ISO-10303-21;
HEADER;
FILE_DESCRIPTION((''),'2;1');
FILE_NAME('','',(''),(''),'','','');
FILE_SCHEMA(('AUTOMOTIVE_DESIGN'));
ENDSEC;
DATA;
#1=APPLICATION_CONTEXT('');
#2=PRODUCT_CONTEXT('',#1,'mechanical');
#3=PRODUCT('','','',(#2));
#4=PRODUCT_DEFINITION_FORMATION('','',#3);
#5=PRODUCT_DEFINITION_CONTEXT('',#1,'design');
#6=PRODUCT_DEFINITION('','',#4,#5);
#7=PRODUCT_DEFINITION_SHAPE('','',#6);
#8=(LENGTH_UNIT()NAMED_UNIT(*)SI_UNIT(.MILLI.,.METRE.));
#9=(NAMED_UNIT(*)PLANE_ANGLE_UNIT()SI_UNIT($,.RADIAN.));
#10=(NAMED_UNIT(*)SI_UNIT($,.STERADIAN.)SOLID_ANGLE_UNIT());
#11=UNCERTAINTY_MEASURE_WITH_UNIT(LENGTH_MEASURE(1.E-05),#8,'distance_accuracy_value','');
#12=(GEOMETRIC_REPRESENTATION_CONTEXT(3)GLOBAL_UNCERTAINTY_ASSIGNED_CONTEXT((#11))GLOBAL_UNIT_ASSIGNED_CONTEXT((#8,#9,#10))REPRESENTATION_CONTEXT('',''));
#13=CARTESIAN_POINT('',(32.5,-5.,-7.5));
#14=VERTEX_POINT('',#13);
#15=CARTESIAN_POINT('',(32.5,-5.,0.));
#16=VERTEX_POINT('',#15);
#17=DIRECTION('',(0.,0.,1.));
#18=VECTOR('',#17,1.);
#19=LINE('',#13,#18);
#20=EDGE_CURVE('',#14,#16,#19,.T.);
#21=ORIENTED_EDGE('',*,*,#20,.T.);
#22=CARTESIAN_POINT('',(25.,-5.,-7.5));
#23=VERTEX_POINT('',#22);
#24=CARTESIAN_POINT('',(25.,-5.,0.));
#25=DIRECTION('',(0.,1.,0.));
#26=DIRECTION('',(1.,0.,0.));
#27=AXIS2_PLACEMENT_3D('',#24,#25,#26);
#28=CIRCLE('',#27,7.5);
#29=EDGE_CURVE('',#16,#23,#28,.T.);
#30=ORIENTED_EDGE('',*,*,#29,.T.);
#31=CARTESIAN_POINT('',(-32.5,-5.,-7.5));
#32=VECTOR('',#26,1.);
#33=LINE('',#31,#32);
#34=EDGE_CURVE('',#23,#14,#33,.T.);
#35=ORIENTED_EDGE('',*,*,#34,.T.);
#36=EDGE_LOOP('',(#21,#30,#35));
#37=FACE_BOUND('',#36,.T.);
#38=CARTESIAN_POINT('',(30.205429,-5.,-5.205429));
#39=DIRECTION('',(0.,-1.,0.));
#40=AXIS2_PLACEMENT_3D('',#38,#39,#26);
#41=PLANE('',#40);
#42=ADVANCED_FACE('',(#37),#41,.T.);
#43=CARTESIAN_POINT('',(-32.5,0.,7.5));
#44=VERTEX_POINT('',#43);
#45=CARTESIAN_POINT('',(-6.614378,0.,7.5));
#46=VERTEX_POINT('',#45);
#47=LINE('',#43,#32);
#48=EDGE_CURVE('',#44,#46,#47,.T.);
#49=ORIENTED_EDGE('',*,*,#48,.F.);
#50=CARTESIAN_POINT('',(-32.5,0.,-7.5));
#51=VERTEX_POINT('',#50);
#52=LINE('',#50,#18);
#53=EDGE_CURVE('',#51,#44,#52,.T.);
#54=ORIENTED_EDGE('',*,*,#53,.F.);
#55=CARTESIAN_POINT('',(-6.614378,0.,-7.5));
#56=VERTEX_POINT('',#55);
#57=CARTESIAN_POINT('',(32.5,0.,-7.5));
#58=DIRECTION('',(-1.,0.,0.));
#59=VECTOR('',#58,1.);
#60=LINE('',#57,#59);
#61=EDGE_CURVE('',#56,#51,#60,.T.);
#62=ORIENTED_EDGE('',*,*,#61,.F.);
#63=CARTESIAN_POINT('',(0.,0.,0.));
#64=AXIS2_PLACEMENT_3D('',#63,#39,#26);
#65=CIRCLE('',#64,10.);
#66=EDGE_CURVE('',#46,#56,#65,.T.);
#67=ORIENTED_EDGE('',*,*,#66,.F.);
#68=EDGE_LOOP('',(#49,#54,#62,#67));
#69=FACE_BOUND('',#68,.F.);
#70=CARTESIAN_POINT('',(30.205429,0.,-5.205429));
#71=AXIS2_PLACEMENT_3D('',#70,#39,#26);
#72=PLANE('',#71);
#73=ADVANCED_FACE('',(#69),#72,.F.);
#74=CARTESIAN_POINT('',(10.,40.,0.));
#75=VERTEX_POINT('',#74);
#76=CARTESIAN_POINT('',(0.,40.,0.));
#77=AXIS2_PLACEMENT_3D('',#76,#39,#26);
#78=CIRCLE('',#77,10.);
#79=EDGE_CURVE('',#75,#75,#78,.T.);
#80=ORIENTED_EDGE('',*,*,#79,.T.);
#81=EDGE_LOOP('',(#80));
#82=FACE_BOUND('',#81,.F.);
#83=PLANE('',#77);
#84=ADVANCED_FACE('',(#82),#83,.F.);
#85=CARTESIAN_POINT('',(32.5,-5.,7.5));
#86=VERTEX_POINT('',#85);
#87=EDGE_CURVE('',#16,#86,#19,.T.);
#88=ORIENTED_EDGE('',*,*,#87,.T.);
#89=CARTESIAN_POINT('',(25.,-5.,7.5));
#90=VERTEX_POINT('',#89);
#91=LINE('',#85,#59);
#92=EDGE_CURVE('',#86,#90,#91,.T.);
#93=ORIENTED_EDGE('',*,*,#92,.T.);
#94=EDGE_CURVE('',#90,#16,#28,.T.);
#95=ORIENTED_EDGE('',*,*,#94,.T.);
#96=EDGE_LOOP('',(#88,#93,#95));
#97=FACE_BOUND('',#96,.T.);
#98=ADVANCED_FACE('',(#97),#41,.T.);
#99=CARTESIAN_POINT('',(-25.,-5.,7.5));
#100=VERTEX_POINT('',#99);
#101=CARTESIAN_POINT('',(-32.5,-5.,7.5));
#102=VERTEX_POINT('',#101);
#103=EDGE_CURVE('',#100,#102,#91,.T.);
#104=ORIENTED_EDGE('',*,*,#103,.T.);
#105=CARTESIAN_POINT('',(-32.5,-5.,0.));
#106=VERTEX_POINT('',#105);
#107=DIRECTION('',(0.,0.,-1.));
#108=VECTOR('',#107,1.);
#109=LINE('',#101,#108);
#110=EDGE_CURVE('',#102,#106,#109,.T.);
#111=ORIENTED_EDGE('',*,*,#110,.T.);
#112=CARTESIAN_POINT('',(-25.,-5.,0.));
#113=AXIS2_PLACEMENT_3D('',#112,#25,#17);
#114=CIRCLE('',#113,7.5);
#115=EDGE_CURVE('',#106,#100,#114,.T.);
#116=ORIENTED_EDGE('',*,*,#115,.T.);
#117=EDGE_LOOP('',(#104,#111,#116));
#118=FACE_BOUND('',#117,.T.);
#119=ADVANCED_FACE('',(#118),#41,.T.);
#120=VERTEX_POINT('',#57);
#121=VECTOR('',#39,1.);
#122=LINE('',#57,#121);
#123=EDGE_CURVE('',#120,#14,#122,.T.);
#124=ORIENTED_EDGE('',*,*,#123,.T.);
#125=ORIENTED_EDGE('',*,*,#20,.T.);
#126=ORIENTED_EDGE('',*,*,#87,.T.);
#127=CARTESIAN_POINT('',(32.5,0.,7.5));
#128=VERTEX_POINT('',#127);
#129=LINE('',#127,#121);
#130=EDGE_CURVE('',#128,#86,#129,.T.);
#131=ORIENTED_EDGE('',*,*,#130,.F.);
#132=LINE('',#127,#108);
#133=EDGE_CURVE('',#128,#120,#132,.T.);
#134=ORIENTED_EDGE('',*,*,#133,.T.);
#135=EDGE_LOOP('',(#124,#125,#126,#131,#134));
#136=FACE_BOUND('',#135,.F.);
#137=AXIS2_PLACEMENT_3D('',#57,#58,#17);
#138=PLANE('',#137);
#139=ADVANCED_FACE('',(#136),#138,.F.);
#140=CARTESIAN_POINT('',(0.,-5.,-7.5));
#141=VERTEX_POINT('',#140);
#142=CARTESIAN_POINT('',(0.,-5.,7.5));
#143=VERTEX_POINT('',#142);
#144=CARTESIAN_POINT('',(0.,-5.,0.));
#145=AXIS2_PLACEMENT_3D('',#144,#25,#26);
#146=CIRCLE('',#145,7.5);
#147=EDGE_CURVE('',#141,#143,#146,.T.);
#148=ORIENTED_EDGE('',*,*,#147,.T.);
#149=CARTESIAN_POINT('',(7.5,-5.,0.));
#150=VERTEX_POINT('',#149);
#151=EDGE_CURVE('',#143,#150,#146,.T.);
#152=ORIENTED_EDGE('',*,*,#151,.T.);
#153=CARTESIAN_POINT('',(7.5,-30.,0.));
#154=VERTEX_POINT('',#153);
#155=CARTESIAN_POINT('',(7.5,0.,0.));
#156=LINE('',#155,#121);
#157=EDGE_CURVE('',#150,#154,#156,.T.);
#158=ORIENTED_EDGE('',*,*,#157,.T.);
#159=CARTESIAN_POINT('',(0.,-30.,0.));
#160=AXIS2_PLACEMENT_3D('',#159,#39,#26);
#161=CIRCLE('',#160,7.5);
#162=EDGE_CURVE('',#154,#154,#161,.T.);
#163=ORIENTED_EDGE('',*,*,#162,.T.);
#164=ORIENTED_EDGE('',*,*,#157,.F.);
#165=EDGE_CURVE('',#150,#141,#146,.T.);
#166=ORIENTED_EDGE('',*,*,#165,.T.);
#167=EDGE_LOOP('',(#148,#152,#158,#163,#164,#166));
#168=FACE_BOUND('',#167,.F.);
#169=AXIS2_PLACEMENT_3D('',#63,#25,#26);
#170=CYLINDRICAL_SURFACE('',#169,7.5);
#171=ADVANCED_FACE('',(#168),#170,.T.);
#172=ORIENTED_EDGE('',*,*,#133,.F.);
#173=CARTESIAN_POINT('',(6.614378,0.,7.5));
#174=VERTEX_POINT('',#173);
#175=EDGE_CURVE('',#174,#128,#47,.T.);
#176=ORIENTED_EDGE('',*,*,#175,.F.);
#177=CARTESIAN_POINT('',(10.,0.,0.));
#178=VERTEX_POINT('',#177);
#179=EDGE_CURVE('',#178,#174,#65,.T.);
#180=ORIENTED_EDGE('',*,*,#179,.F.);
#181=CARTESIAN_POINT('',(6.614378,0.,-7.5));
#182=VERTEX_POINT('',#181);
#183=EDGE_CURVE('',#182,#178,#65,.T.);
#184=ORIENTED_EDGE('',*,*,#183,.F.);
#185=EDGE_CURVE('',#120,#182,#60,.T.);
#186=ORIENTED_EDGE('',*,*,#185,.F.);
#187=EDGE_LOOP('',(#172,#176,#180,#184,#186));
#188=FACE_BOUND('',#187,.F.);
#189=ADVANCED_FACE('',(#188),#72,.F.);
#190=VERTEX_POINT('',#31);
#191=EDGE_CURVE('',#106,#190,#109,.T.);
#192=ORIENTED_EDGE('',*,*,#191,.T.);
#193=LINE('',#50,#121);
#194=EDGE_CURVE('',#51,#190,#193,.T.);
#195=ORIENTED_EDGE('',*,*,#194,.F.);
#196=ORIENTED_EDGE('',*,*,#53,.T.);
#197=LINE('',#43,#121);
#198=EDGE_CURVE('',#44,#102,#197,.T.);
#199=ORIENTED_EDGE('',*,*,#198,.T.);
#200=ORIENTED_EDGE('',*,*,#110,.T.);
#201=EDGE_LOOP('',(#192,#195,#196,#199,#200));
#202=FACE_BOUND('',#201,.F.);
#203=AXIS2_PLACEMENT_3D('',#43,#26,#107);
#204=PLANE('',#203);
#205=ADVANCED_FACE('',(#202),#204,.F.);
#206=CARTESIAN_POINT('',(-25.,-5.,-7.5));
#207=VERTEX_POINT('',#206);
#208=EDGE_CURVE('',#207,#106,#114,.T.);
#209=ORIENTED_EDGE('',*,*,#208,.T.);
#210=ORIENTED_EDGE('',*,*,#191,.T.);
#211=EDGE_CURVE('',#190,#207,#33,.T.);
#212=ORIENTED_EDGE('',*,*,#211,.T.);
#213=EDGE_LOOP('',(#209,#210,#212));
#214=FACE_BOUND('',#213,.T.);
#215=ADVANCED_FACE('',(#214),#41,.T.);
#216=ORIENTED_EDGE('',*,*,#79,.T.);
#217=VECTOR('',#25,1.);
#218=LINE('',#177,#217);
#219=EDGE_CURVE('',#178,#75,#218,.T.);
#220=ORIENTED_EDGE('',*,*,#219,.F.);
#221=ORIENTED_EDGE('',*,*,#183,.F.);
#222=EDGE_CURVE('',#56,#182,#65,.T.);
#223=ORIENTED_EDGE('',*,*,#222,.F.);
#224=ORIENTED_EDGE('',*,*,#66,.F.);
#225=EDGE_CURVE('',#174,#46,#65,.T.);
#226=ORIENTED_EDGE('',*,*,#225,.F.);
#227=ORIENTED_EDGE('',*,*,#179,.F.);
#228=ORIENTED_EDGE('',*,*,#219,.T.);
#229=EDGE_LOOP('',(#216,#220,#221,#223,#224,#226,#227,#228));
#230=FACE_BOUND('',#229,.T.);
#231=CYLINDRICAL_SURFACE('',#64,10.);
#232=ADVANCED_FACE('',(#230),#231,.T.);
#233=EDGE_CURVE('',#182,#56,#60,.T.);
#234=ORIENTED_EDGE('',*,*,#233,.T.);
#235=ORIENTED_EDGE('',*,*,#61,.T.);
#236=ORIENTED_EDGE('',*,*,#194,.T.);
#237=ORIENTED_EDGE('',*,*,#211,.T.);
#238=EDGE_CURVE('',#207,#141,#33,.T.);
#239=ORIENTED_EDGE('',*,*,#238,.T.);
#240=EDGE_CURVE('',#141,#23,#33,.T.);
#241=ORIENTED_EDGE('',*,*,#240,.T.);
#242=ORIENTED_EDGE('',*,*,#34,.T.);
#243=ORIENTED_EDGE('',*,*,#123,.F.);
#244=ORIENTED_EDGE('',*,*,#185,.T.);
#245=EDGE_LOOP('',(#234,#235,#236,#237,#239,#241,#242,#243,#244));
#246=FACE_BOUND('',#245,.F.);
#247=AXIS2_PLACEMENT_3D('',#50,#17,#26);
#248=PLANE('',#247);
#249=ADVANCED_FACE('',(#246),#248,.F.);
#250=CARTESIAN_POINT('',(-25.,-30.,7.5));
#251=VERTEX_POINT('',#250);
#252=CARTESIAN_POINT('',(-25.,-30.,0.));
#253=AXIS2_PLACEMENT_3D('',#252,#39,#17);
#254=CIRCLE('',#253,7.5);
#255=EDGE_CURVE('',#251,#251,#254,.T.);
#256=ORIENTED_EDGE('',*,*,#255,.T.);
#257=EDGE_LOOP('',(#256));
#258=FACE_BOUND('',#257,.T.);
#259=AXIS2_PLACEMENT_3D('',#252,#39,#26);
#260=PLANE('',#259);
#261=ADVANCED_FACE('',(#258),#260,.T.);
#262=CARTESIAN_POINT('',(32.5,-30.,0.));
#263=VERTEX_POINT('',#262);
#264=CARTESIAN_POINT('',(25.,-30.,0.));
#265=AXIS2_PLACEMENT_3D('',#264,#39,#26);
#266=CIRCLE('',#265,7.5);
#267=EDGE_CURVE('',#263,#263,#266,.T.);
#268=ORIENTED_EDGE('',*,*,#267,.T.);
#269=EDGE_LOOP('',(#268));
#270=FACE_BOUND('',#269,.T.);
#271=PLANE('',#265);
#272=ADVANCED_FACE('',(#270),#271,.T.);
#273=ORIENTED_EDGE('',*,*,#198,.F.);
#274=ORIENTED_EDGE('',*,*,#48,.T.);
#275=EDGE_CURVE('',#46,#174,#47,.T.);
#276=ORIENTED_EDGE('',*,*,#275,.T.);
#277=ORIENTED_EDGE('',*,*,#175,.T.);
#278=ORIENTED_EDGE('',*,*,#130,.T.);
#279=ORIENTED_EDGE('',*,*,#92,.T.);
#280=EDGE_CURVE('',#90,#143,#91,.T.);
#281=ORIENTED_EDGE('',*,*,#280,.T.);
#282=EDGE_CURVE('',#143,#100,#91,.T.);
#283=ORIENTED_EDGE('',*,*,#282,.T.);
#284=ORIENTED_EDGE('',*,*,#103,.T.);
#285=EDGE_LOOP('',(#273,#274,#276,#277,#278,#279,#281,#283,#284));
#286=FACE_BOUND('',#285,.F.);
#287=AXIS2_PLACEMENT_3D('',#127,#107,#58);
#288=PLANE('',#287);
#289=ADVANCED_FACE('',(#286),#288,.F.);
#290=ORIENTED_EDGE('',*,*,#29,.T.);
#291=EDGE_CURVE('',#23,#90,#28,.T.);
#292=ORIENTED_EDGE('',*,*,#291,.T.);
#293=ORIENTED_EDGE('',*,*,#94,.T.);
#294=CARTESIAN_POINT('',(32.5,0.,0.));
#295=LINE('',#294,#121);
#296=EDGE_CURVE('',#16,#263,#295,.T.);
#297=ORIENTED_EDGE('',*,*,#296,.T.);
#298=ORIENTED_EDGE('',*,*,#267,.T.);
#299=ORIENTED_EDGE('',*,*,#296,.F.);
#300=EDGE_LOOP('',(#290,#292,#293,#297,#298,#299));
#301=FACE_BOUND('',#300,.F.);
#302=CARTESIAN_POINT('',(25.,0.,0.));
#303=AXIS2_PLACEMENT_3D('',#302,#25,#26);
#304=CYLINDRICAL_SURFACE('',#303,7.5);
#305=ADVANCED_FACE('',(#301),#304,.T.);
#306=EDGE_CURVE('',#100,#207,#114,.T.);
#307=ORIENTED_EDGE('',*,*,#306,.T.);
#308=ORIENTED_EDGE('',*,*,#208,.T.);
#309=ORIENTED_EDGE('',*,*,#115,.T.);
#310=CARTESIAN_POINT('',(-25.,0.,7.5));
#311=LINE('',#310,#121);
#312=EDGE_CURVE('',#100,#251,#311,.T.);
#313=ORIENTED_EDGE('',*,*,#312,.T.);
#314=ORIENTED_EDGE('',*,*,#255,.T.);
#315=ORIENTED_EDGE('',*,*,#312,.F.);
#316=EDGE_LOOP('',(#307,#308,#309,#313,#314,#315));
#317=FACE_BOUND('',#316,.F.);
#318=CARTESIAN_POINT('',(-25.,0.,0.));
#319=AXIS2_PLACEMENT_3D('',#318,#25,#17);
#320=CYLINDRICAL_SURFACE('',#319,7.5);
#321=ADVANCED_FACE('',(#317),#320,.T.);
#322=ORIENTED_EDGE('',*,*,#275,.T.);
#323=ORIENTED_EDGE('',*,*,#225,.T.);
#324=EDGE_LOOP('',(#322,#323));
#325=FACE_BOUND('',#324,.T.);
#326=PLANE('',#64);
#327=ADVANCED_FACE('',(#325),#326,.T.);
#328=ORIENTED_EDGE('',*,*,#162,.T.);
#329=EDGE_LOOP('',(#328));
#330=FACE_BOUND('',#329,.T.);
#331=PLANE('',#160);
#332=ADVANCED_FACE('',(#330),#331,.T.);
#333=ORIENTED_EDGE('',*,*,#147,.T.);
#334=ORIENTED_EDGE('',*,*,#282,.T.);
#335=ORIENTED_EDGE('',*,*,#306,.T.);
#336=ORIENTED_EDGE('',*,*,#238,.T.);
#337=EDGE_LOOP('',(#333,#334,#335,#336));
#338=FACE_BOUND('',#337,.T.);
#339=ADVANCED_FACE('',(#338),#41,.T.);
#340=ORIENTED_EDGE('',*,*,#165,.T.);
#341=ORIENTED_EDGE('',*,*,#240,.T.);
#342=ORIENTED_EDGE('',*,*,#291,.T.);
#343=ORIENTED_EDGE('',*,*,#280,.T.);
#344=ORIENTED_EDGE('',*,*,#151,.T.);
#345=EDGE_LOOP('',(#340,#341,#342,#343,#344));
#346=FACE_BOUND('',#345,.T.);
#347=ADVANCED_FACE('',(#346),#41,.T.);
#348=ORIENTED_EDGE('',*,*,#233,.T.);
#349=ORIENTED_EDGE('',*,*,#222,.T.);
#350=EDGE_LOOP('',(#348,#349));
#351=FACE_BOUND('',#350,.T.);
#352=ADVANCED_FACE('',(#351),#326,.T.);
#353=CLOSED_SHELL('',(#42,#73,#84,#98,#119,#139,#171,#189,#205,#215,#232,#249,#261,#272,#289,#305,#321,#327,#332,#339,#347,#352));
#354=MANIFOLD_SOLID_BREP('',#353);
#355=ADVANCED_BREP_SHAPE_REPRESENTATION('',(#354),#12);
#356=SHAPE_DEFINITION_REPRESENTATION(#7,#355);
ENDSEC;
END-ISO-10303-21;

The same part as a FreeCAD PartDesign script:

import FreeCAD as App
import Part
import Sketcher

doc = App.newDocument("Part")
body = doc.addObject("PartDesign::Body", "Body")

# Sketch on XZ plane
sketch1 = body.newObject("Sketcher::SketchObject", "Sketch")
sketch1.AttachmentSupport = (doc.getObject("XZ_Plane"), [""])
sketch1.MapMode = "FlatFace"
sketch1.addGeometry(Part.LineSegment(App.Vector(32, -8, 0), App.Vector(32, 8, 0)), False)
sketch1.addGeometry(Part.LineSegment(App.Vector(32, 8, 0), App.Vector(-32, 8, 0)), False)
sketch1.addGeometry(Part.LineSegment(App.Vector(-32, 8, 0), App.Vector(-32, -8, 0)), False)
sketch1.addGeometry(Part.LineSegment(App.Vector(-32, -8, 0), App.Vector(32, -8, 0)), False)
sketch1.addConstraint(Sketcher.Constraint("Coincident", 0, 2, 1, 1))
sketch1.addConstraint(Sketcher.Constraint("Coincident", 1, 2, 2, 1))
sketch1.addConstraint(Sketcher.Constraint("Coincident", 2, 2, 3, 1))
sketch1.addConstraint(Sketcher.Constraint("Coincident", 3, 2, 0, 1))
sketch1.addConstraint(Sketcher.Constraint("Vertical", 0))
sketch1.addConstraint(Sketcher.Constraint("Horizontal", 1))
sketch1.addConstraint(Sketcher.Constraint("Vertical", 2))
sketch1.addConstraint(Sketcher.Constraint("Horizontal", 3))
sketch1.addConstraint(Sketcher.Constraint("Symmetric", 0, 2, 2, 2, -1, 1))
sketch1.addConstraint(Sketcher.Constraint("DistanceX", 1, 2, 1, 1, 65.0))
sketch1.addConstraint(Sketcher.Constraint("DistanceY", 0, 1, 0, 2, 15.0))
pad1 = body.newObject("PartDesign::Pad", "Pad")
pad1.Profile = sketch1
pad1.Length = 5

# Sketch on XZ plane
sketch2 = body.newObject("Sketcher::SketchObject", "Sketch001")
sketch2.AttachmentSupport = (doc.getObject("XZ_Plane"), [""])
sketch2.MapMode = "FlatFace"
sketch2.addGeometry(Part.Circle(App.Vector(-25, 0, 0), App.Vector(0, 0, 1), 8), False)
sketch2.addGeometry(Part.Circle(App.Vector(25, 0, 0), App.Vector(0, 0, 1), 8), False)
sketch2.addGeometry(Part.Circle(App.Vector(0, 0, 0), App.Vector(0, 0, 1), 8), False)
sketch2.addConstraint(Sketcher.Constraint("Coincident", 2, 3, -1, 1))
sketch2.addConstraint(Sketcher.Constraint("Equal", 0, 1))
sketch2.addConstraint(Sketcher.Constraint("Equal", 1, 2))
sketch2.addConstraint(Sketcher.Constraint("Symmetric", 0, 3, 1, 3, -1, 1))
sketch2.addConstraint(Sketcher.Constraint("PointOnObject", 0, 3, -1))
sketch2.addConstraint(Sketcher.Constraint("Diameter", 0, 15.0))
sketch2.addConstraint(Sketcher.Constraint("DistanceX", 0, 3, -1, 1, 25.0))
pad2 = body.newObject("PartDesign::Pad", "Pad001")
pad2.Profile = sketch2
pad2.Length = 30

# Sketch on XZ plane
sketch3 = body.newObject("Sketcher::SketchObject", "Sketch002")
sketch3.AttachmentSupport = (doc.getObject("XZ_Plane"), [""])
sketch3.MapMode = "FlatFace"
sketch3.addGeometry(Part.Circle(App.Vector(0, 0, 0), App.Vector(0, 0, 1), 10), False)
sketch3.addConstraint(Sketcher.Constraint("Coincident", 0, 3, -1, 1))
sketch3.addConstraint(Sketcher.Constraint("Diameter", 0, 20.0))
pad3 = body.newObject("PartDesign::Pad", "Pad002")
pad3.Profile = sketch3
pad3.Length = 40
pad3.Reversed = True

doc.recompute()
